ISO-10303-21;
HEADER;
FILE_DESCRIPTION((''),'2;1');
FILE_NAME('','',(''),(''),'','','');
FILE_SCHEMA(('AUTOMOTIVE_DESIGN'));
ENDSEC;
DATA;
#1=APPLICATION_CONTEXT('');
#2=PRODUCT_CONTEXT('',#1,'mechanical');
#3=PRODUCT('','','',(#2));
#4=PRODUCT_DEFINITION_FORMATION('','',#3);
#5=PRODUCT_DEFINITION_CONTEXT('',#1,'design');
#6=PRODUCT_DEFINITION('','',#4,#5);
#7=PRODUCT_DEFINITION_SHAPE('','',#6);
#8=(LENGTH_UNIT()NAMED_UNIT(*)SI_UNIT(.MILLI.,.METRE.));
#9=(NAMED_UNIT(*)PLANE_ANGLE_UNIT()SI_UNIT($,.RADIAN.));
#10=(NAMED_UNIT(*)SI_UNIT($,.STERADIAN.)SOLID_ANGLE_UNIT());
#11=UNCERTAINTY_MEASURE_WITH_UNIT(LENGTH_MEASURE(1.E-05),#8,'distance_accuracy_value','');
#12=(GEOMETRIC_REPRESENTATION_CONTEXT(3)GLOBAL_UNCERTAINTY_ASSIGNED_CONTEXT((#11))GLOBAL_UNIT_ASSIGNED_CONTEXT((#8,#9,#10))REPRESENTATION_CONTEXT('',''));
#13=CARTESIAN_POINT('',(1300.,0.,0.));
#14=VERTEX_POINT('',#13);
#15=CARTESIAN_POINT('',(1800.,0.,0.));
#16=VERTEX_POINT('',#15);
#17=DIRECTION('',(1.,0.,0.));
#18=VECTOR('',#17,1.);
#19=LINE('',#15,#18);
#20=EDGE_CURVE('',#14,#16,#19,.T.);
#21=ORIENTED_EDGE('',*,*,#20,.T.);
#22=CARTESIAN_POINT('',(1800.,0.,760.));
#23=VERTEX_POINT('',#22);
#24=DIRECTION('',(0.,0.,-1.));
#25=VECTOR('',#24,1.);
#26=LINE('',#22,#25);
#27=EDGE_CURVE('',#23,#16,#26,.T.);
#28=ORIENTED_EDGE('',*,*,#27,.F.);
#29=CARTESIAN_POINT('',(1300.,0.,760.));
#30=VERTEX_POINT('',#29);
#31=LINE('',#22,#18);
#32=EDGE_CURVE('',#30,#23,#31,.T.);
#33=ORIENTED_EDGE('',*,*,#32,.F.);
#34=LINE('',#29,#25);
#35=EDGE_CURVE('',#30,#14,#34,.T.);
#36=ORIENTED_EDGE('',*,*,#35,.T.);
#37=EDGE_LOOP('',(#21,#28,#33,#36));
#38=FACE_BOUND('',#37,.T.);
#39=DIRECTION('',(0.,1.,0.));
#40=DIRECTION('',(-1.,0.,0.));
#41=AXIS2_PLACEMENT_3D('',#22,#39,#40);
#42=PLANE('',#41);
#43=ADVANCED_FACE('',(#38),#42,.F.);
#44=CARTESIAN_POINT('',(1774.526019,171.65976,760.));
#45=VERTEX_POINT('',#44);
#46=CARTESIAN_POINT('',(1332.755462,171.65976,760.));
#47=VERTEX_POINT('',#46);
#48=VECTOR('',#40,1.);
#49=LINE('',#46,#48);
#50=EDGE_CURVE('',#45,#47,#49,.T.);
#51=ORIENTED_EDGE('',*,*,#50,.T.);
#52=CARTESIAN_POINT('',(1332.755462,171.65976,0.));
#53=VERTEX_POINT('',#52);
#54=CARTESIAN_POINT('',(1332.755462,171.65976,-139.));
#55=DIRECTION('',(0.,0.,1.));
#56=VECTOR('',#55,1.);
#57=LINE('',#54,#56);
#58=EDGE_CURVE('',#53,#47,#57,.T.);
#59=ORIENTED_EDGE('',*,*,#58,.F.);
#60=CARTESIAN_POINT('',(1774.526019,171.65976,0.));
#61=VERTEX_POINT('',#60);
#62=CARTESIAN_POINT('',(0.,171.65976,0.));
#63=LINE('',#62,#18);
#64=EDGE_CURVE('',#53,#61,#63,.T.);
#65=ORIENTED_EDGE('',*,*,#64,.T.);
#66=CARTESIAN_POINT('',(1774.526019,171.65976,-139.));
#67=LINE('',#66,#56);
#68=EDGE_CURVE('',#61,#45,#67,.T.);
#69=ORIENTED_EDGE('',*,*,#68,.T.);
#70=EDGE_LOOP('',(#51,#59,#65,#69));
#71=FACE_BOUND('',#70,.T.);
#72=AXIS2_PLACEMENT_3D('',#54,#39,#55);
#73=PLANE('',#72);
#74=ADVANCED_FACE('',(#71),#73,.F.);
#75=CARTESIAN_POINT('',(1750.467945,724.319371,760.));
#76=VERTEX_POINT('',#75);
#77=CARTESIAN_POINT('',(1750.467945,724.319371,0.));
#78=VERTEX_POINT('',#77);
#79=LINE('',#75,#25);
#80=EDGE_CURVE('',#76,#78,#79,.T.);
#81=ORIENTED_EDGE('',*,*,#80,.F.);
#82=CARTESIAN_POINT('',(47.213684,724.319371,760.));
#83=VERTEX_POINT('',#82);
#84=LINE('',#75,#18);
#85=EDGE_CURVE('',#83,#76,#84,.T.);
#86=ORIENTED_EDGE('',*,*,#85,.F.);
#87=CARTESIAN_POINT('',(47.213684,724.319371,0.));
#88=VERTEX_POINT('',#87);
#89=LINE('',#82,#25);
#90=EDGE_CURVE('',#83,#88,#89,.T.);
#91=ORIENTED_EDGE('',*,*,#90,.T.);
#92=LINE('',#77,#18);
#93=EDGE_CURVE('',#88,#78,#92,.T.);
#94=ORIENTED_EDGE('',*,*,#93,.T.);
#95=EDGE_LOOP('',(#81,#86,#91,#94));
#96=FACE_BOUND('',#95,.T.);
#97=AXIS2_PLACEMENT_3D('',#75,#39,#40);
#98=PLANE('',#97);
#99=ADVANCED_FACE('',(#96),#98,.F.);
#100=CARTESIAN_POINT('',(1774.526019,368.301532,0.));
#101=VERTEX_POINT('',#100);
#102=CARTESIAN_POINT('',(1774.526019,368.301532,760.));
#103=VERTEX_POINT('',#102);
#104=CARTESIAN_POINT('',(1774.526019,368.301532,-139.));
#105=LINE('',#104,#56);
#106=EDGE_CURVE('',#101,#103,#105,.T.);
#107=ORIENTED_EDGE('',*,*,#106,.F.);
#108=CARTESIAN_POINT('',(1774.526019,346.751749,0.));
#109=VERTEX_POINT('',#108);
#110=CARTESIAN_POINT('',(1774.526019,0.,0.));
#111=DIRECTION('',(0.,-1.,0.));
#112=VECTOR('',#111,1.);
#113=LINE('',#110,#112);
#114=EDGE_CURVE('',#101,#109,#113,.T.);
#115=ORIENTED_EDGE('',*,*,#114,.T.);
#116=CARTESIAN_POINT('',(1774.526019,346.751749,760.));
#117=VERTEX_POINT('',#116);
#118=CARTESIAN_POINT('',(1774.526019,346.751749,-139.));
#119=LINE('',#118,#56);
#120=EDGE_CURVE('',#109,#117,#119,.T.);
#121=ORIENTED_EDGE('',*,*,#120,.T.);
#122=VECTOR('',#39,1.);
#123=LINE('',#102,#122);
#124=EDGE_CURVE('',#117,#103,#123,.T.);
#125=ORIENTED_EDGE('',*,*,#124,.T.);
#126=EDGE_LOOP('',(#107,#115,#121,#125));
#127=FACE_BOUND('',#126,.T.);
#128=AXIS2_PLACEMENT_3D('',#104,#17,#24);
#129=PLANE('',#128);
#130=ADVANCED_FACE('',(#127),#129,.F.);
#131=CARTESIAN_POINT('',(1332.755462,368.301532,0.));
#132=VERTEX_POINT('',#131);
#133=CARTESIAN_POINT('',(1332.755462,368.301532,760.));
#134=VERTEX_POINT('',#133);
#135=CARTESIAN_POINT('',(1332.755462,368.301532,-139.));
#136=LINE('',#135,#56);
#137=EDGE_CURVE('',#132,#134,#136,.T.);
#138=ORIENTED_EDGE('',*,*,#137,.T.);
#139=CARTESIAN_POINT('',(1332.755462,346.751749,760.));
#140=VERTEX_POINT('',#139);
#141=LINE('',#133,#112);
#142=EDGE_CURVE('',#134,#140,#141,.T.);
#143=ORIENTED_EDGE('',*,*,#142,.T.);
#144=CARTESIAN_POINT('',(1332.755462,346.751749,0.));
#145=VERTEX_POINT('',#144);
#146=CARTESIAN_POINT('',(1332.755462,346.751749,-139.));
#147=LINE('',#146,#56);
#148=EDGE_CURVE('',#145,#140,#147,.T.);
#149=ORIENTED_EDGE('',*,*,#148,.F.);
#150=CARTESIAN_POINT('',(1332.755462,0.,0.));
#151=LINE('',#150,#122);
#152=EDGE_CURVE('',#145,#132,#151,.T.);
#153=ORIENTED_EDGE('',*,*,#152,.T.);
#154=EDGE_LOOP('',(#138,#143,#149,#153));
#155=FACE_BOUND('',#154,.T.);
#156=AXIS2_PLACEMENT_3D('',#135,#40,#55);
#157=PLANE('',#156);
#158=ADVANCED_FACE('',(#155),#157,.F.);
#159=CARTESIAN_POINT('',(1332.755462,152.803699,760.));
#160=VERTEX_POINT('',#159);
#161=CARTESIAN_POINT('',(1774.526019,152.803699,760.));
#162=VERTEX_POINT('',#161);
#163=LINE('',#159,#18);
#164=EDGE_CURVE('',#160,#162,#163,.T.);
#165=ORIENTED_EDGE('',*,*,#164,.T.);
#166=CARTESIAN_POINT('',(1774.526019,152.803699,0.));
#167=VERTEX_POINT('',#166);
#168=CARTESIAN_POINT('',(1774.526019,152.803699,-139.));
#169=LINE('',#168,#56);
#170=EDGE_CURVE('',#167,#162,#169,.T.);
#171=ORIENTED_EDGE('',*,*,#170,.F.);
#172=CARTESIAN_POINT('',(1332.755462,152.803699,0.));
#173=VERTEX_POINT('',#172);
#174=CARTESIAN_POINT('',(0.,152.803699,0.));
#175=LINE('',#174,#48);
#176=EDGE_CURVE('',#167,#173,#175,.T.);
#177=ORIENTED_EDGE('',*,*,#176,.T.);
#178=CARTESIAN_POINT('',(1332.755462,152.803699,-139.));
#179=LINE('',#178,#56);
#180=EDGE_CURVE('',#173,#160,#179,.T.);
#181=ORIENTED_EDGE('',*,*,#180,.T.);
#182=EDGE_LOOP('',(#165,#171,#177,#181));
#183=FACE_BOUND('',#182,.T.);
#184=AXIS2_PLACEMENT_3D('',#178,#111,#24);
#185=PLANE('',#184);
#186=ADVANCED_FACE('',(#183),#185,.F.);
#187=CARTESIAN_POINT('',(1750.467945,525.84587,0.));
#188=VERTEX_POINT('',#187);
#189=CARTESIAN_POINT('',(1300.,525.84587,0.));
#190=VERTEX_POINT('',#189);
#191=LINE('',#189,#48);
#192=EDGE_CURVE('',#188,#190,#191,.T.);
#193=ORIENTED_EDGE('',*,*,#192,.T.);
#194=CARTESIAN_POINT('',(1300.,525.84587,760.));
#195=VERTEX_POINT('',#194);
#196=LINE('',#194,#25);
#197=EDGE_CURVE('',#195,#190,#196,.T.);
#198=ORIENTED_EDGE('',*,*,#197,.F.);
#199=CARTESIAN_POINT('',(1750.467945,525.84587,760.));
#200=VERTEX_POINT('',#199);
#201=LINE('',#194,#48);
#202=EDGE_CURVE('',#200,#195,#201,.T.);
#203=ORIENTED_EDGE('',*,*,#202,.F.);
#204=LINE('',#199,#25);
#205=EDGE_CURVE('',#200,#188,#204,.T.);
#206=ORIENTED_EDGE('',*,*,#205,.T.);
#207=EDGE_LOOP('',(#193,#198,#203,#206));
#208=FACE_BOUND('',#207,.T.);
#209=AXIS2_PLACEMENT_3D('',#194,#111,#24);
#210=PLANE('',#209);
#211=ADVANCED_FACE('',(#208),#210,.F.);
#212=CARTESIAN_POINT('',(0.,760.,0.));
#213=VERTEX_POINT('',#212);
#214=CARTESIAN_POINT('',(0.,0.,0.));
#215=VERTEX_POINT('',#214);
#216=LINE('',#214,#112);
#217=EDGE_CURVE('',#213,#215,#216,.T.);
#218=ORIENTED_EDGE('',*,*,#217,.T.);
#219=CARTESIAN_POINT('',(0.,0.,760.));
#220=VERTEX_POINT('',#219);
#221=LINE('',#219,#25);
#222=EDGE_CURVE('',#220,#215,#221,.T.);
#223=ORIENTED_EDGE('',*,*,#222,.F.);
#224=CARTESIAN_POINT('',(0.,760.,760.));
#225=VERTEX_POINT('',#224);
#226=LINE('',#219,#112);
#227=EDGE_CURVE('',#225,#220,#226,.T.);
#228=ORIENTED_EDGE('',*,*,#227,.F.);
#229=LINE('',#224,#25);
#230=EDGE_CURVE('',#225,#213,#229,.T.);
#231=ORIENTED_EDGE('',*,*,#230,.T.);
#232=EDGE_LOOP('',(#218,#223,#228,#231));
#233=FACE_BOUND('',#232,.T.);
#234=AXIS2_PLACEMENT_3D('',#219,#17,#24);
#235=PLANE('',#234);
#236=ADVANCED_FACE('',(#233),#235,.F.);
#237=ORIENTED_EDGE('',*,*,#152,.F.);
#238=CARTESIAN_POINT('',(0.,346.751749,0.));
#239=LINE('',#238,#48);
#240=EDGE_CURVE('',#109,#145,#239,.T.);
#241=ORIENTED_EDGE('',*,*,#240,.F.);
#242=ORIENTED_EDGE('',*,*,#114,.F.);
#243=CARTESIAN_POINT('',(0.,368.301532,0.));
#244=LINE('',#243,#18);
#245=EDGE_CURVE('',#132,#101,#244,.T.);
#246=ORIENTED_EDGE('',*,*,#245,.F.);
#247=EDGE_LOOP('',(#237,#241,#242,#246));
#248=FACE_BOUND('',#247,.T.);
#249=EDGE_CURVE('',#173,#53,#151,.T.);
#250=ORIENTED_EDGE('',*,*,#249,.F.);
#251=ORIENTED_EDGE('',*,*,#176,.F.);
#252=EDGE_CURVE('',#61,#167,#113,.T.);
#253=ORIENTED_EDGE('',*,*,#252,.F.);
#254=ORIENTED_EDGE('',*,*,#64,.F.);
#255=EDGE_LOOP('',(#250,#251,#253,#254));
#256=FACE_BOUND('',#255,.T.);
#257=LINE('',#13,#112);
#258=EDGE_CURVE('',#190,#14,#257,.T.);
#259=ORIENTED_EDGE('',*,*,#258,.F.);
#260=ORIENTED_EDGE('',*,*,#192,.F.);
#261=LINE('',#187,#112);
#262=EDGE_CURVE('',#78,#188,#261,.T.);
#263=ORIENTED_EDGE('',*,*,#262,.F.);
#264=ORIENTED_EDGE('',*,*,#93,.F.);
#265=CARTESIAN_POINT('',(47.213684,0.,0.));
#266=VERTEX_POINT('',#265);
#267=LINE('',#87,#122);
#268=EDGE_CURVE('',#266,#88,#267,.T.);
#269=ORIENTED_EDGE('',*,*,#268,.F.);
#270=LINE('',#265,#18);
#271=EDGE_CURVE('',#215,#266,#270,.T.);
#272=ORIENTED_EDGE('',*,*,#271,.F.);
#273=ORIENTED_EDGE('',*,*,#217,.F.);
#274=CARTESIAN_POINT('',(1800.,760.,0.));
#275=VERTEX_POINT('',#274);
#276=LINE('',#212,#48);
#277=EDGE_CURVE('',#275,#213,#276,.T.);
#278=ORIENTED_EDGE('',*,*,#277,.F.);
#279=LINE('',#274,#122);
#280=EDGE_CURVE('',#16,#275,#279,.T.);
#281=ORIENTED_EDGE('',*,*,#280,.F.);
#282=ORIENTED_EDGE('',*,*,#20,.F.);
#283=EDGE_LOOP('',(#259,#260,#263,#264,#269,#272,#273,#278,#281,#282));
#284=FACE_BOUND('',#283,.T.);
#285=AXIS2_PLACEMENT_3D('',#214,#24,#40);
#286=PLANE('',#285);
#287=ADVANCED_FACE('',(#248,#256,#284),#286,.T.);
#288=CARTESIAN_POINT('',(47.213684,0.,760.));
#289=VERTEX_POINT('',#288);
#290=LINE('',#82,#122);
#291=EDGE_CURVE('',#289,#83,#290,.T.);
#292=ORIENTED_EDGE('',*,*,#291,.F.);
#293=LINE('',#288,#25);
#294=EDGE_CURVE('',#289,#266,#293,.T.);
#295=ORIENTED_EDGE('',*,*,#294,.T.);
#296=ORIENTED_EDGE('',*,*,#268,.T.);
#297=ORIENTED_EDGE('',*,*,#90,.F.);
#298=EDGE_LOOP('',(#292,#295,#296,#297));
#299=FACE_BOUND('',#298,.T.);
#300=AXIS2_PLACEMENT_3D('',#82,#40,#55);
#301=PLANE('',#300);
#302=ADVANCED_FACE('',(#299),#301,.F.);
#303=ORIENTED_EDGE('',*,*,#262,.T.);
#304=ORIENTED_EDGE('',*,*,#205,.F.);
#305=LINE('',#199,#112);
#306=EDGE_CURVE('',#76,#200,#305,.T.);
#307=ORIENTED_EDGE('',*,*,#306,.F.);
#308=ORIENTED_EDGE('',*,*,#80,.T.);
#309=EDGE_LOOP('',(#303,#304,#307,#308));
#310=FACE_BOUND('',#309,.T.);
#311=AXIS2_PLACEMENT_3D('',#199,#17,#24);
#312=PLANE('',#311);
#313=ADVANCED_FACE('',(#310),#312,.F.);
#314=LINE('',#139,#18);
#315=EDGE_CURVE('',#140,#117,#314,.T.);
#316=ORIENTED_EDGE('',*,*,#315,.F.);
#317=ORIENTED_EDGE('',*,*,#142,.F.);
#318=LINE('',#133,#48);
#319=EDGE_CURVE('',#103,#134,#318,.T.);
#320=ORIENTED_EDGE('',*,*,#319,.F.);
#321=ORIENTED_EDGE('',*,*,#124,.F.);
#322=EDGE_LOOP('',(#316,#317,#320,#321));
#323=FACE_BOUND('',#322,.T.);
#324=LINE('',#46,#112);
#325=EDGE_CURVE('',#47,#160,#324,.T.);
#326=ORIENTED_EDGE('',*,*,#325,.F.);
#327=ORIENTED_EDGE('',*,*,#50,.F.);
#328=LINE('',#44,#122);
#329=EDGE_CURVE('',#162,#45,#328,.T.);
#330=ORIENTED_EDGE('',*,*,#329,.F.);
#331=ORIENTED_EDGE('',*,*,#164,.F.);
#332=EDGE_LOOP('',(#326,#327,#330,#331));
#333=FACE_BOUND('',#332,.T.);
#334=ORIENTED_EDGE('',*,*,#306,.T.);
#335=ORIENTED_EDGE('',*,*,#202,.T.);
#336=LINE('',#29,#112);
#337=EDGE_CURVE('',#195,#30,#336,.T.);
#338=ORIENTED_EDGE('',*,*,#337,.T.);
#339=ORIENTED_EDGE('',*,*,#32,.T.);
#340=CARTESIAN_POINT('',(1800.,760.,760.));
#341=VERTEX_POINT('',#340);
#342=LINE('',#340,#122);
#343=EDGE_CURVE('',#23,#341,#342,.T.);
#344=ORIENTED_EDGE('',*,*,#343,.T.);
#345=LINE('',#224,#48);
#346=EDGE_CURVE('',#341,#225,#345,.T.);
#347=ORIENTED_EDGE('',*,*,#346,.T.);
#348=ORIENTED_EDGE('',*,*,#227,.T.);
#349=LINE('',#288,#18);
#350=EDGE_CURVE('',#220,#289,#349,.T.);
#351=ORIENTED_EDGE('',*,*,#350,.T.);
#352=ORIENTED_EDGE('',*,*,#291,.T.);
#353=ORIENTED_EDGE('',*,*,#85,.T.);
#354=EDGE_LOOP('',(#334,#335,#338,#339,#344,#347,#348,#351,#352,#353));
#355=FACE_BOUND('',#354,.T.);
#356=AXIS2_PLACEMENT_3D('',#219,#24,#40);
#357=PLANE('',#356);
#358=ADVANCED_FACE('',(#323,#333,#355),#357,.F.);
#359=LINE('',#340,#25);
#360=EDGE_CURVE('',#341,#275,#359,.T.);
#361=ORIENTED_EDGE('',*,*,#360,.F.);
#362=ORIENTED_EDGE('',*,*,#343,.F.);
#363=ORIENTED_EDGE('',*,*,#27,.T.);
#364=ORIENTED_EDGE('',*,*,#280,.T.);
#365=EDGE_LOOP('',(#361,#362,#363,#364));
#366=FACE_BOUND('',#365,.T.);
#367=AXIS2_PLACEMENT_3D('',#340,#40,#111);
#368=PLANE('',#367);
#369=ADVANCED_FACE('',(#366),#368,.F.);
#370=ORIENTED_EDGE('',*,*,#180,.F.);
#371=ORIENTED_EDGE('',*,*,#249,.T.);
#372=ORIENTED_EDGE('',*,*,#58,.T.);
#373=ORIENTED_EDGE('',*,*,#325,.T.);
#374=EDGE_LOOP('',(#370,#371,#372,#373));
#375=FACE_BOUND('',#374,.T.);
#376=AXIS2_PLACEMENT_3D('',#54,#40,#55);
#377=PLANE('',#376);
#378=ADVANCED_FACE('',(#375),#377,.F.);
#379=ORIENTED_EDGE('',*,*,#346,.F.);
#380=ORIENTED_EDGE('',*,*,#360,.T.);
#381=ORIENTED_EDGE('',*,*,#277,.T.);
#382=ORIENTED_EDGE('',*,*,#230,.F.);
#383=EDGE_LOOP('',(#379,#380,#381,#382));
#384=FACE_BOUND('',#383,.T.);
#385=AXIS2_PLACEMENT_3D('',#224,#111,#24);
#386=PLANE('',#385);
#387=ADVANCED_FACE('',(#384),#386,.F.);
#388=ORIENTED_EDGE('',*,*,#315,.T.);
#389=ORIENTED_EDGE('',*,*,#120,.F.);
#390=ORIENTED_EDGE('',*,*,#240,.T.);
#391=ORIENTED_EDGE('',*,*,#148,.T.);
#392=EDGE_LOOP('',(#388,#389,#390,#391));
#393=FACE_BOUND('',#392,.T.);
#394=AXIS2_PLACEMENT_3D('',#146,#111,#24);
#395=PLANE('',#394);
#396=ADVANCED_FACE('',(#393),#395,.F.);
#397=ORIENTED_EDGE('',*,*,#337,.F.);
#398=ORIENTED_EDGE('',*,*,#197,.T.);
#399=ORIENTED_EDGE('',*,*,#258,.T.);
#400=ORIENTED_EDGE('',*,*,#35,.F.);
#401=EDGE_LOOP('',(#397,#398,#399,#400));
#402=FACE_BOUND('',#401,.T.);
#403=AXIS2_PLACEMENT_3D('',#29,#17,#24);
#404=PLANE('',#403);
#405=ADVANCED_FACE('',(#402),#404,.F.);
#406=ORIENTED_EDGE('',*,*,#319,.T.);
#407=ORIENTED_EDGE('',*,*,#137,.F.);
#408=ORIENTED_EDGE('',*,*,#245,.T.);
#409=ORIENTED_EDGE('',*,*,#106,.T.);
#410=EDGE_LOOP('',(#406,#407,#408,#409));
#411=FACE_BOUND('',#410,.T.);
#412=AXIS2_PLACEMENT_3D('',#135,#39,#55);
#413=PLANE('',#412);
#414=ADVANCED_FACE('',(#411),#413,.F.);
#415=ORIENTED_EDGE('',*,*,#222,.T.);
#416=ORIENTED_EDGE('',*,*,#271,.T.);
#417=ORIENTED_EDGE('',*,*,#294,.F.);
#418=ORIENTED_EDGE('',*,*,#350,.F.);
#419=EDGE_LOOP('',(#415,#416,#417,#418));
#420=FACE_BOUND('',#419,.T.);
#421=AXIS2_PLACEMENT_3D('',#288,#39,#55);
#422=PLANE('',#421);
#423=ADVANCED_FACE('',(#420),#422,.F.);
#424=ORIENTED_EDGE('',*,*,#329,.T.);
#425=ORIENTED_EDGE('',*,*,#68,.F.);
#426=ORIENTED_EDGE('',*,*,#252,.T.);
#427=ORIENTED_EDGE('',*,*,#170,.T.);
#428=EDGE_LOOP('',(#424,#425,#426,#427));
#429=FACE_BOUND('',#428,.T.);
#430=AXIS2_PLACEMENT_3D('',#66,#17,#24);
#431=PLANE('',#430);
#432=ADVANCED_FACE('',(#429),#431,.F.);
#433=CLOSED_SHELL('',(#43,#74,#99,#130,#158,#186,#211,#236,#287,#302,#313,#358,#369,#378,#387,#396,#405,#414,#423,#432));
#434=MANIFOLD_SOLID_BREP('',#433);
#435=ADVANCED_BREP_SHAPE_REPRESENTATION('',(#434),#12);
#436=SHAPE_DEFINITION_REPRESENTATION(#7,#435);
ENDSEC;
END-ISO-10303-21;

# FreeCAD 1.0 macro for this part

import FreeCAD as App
import Part
import Sketcher


def add_polygon(sketch, points):
    """Adds a closed chain of lines whose ends are joined by coincident constraints."""
    first, n = sketch.GeometryCount, len(points)
    for a, b in zip(points, points[1:] + points[:1]):
        sketch.addGeometry(Part.LineSegment(App.Vector(*a, 0), App.Vector(*b, 0)), False)
    for i in range(n):
        sketch.addConstraint(Sketcher.Constraint("Coincident", first + i, 2, first + (i + 1) % n, 1))

doc = App.newDocument("Part")
body = doc.addObject("PartDesign::Body", "Body")

# Sketch on XY plane
sketch1 = doc.addObject("Sketcher::SketchObject", "Sketch")
body.addObject(sketch1)
sketch1.AttachmentSupport = (doc.XY_Plane, [""])
sketch1.MapMode = "FlatFace"
add_polygon(sketch1, [(0, 760), (0, 0), (47, 0), (47, 724), (1750, 724), (1750, 526), (1300, 526), (1300, 0), (1800, 0), (1800, 760)])  # lines 0-9
sketch1.addConstraint([
    Sketcher.Constraint("Vertical", 0),
    Sketcher.Constraint("Horizontal", 1),
    Sketcher.Constraint("Vertical", 2),
    Sketcher.Constraint("Horizontal", 3),
    Sketcher.Constraint("Vertical", 4),
    Sketcher.Constraint("Horizontal", 5),
    Sketcher.Constraint("Vertical", 6),
    Sketcher.Constraint("Horizontal", 7),
    Sketcher.Constraint("Vertical", 8),
    Sketcher.Constraint("Horizontal", 9),
    Sketcher.Constraint("Coincident", 0, 2, -1, 1),
    Sketcher.Constraint("PointOnObject", 6, 2, -1),
    Sketcher.Constraint("DistanceX", 7, 1, 7, 2, 500.0),
    Sketcher.Constraint("DistanceX", 9, 2, 9, 1, 1800.0),
    Sketcher.Constraint("DistanceY", 0, 2, 0, 1, 760.0),
    Sketcher.Constraint("DistanceY", 4, 2, 4, 1, 198.473501),
    Sketcher.Constraint("DistanceX", 3, 1, 3, 2, 1703.254261),
    Sketcher.Constraint("DistanceY", 2, 1, 2, 2, 724.319371),
    Sketcher.Constraint("DistanceX", 1, 1, 1, 2, 47.213684),
])
pad1 = doc.addObject("PartDesign::Pad", "Pad")
body.addObject(pad1)
pad1.Profile = sketch1
pad1.Length = 760

# Sketch on XY plane
sketch2 = doc.addObject("Sketcher::SketchObject", "Sketch001")
body.addObject(sketch2)
sketch2.AttachmentSupport = (doc.XY_Plane, [""])
sketch2.MapMode = "FlatFace"
sketch2.AttachmentOffset = App.Placement(App.Vector(0, 0, 760), App.Rotation())
add_polygon(sketch2, [(1333, 368), (1333, 347), (1775, 347), (1775, 368)])  # lines 0-3
add_polygon(sketch2, [(1333, 172), (1333, 153), (1775, 153), (1775, 172)])  # lines 4-7
sketch2.addConstraint([
    Sketcher.Constraint("Vertical", 0),
    Sketcher.Constraint("Horizontal", 1),
    Sketcher.Constraint("Vertical", 2),
    Sketcher.Constraint("Horizontal", 3),
    Sketcher.Constraint("Vertical", 4),
    Sketcher.Constraint("Horizontal", 5),
    Sketcher.Constraint("Vertical", 6),
    Sketcher.Constraint("Horizontal", 7),
    Sketcher.Constraint("Vertical", 3, 2, 4, 2),
    Sketcher.Constraint("Vertical", 2, 2, 5, 2),
    Sketcher.Constraint("DistanceY", 4, 2, 4, 1, 18.85606),
    Sketcher.Constraint("DistanceY", -1, 1, 4, 2, 152.803699),
    Sketcher.Constraint("DistanceX", 1, 1, 1, 2, 441.770557),
    Sketcher.Constraint("DistanceY", 0, 2, 0, 1, 21.549783),
    Sketcher.Constraint("DistanceX", -1, 1, 0, 2, 1332.755462),
    Sketcher.Constraint("DistanceY", -1, 1, 0, 2, 346.751749),
])
pocket1 = doc.addObject("PartDesign::Pocket", "Pocket")
body.addObject(pocket1)
pocket1.Profile = sketch2
pocket1.Length = 899

doc.recompute()
